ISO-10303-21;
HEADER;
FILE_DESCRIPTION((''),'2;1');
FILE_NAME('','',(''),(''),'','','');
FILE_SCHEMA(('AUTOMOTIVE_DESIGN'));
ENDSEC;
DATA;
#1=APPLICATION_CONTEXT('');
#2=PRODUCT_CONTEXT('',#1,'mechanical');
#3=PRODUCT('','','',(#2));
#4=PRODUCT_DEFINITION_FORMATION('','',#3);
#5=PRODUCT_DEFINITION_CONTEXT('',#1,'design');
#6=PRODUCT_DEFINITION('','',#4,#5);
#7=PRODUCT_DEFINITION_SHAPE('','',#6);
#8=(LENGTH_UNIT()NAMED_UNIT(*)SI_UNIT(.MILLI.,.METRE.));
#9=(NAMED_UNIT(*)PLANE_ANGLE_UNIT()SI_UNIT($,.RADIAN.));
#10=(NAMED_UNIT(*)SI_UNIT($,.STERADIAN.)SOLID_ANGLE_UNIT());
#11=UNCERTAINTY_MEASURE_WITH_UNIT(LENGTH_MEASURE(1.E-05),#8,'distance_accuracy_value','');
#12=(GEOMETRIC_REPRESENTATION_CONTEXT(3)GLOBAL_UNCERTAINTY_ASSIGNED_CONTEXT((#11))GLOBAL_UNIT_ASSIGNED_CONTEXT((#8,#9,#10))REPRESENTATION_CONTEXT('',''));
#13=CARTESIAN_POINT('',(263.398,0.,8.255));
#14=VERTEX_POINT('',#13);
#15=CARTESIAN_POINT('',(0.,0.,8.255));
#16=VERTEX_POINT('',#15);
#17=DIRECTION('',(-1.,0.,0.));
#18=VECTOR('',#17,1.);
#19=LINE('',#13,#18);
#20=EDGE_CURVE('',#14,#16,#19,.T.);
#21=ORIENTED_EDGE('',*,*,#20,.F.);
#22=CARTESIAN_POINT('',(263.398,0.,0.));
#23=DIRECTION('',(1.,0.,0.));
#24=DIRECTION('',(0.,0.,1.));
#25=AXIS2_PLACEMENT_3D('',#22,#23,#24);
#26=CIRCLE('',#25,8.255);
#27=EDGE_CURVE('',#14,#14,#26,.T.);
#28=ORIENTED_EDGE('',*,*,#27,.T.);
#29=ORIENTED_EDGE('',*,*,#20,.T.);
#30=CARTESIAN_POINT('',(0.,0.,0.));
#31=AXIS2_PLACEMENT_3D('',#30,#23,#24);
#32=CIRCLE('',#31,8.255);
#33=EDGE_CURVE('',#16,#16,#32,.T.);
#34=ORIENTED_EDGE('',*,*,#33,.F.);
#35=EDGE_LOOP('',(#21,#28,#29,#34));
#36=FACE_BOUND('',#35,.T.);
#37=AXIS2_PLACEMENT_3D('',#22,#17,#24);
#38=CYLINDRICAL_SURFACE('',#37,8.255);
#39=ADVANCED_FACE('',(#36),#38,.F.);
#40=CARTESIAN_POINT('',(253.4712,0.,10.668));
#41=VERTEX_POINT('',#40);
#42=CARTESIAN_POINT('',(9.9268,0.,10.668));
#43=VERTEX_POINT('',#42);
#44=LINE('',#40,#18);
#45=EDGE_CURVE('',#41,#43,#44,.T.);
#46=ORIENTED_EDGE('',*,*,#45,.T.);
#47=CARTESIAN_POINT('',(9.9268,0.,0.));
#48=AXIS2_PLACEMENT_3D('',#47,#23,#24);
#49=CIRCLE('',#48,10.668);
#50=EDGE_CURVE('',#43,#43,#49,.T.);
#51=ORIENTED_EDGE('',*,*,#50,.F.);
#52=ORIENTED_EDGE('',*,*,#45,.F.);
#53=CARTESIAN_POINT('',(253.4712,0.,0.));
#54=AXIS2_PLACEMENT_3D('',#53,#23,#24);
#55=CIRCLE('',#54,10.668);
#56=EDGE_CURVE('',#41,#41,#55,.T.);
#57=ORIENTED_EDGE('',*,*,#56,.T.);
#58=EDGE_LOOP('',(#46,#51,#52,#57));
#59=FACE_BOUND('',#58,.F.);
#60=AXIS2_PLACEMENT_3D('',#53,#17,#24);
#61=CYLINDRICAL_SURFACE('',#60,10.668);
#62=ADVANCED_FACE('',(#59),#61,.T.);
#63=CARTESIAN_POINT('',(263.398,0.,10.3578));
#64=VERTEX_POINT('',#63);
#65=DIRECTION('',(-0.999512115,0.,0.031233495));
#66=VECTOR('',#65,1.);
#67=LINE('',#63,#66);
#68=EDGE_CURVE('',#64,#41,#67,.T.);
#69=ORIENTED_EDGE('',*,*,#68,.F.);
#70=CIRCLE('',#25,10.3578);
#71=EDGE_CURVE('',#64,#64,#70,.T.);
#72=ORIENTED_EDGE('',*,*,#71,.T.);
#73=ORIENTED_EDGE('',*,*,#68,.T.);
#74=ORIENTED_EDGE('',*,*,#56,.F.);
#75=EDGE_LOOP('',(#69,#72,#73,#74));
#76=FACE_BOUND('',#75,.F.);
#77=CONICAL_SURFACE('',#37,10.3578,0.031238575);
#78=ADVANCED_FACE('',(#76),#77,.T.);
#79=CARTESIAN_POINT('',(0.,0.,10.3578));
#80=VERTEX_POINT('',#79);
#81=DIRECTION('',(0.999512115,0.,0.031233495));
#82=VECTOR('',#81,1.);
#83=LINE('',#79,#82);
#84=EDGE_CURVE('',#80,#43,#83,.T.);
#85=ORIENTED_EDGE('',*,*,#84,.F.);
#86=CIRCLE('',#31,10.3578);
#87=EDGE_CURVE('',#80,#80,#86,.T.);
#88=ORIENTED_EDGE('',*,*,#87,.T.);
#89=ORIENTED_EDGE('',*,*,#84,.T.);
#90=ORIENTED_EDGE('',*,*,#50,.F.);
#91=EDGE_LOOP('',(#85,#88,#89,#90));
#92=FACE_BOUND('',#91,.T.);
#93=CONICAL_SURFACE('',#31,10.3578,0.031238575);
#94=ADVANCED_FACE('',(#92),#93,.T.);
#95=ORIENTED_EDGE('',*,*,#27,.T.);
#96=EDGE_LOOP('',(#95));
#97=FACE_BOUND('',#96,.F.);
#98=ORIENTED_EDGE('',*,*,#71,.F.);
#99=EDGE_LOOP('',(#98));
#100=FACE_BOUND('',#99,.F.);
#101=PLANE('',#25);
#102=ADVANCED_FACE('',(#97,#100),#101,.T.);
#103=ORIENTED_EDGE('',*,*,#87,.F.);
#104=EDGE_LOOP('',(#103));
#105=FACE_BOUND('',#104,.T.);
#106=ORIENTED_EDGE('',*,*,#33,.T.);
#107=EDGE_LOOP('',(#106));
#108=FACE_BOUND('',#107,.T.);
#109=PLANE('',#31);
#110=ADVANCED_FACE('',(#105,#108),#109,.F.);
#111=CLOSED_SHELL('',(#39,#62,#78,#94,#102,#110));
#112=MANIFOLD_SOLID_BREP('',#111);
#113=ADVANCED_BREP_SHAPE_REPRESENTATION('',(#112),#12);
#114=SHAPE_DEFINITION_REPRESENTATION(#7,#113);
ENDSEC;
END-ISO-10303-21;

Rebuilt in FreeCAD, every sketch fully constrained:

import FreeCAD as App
import Part
import Sketcher
from FreeCAD import Vector
Q = App.Units.Quantity


def add_polygon(sketch, points):
    """Adds a closed chain of lines whose ends are joined by coincident constraints."""
    first, n = sketch.GeometryCount, len(points)
    for a, b in zip(points, points[1:] + points[:1]):
        sketch.addGeometry(Part.LineSegment(App.Vector(*a, 0), App.Vector(*b, 0)), False)
    for i in range(n):
        sketch.addConstraint(Sketcher.Constraint("Coincident", first + i, 2, first + (i + 1) % n, 1))

doc = App.newDocument("Part")
body = doc.addObject("PartDesign::Body", "Body")

sketch1 = body.newObject("Sketcher::SketchObject", "Sketch")
sketch1.AttachmentSupport = (doc.getObject("XZ_Plane"), [""])
sketch1.MapMode = "FlatFace"
add_polygon(sketch1, [(263.398, 10.3578), (263.398, 8.255), (0, 8.255), (0, 10.3578), (9.9268, 10.668), (253.4712, 10.668)])
sketch1.addConstraint([
    Sketcher.Constraint("Vertical", 0),
    Sketcher.Constraint("Horizontal", 1),
    Sketcher.Constraint("Vertical", 2),
    Sketcher.Constraint("Horizontal", 4),
    Sketcher.Constraint("PointOnObject", 1, 2, -2),
    Sketcher.Constraint("Horizontal", 2, 2, 5, 2),
    Sketcher.Constraint("Equal", 3, 5),
    Sketcher.Constraint("DistanceX", 1, 2, 1, 1, Q("10.37 in")),
    Sketcher.Constraint("Angle", 3, Q("1.7898 deg")),
    Sketcher.Constraint("DistanceY", -1, 1, 3, 2, Q("0.42 in")),
    Sketcher.Constraint("Distance", 3, Q("0.391 in")),
    Sketcher.Constraint("DistanceY", -1, 1, 0, 2, Q("0.325 in")),
])
revolution = body.newObject("PartDesign::Revolution", "Revolution")
revolution.Profile = sketch1
revolution.ReferenceAxis = (sketch1, ["H_Axis"])
revolution.Angle = 360

doc.recompute()
